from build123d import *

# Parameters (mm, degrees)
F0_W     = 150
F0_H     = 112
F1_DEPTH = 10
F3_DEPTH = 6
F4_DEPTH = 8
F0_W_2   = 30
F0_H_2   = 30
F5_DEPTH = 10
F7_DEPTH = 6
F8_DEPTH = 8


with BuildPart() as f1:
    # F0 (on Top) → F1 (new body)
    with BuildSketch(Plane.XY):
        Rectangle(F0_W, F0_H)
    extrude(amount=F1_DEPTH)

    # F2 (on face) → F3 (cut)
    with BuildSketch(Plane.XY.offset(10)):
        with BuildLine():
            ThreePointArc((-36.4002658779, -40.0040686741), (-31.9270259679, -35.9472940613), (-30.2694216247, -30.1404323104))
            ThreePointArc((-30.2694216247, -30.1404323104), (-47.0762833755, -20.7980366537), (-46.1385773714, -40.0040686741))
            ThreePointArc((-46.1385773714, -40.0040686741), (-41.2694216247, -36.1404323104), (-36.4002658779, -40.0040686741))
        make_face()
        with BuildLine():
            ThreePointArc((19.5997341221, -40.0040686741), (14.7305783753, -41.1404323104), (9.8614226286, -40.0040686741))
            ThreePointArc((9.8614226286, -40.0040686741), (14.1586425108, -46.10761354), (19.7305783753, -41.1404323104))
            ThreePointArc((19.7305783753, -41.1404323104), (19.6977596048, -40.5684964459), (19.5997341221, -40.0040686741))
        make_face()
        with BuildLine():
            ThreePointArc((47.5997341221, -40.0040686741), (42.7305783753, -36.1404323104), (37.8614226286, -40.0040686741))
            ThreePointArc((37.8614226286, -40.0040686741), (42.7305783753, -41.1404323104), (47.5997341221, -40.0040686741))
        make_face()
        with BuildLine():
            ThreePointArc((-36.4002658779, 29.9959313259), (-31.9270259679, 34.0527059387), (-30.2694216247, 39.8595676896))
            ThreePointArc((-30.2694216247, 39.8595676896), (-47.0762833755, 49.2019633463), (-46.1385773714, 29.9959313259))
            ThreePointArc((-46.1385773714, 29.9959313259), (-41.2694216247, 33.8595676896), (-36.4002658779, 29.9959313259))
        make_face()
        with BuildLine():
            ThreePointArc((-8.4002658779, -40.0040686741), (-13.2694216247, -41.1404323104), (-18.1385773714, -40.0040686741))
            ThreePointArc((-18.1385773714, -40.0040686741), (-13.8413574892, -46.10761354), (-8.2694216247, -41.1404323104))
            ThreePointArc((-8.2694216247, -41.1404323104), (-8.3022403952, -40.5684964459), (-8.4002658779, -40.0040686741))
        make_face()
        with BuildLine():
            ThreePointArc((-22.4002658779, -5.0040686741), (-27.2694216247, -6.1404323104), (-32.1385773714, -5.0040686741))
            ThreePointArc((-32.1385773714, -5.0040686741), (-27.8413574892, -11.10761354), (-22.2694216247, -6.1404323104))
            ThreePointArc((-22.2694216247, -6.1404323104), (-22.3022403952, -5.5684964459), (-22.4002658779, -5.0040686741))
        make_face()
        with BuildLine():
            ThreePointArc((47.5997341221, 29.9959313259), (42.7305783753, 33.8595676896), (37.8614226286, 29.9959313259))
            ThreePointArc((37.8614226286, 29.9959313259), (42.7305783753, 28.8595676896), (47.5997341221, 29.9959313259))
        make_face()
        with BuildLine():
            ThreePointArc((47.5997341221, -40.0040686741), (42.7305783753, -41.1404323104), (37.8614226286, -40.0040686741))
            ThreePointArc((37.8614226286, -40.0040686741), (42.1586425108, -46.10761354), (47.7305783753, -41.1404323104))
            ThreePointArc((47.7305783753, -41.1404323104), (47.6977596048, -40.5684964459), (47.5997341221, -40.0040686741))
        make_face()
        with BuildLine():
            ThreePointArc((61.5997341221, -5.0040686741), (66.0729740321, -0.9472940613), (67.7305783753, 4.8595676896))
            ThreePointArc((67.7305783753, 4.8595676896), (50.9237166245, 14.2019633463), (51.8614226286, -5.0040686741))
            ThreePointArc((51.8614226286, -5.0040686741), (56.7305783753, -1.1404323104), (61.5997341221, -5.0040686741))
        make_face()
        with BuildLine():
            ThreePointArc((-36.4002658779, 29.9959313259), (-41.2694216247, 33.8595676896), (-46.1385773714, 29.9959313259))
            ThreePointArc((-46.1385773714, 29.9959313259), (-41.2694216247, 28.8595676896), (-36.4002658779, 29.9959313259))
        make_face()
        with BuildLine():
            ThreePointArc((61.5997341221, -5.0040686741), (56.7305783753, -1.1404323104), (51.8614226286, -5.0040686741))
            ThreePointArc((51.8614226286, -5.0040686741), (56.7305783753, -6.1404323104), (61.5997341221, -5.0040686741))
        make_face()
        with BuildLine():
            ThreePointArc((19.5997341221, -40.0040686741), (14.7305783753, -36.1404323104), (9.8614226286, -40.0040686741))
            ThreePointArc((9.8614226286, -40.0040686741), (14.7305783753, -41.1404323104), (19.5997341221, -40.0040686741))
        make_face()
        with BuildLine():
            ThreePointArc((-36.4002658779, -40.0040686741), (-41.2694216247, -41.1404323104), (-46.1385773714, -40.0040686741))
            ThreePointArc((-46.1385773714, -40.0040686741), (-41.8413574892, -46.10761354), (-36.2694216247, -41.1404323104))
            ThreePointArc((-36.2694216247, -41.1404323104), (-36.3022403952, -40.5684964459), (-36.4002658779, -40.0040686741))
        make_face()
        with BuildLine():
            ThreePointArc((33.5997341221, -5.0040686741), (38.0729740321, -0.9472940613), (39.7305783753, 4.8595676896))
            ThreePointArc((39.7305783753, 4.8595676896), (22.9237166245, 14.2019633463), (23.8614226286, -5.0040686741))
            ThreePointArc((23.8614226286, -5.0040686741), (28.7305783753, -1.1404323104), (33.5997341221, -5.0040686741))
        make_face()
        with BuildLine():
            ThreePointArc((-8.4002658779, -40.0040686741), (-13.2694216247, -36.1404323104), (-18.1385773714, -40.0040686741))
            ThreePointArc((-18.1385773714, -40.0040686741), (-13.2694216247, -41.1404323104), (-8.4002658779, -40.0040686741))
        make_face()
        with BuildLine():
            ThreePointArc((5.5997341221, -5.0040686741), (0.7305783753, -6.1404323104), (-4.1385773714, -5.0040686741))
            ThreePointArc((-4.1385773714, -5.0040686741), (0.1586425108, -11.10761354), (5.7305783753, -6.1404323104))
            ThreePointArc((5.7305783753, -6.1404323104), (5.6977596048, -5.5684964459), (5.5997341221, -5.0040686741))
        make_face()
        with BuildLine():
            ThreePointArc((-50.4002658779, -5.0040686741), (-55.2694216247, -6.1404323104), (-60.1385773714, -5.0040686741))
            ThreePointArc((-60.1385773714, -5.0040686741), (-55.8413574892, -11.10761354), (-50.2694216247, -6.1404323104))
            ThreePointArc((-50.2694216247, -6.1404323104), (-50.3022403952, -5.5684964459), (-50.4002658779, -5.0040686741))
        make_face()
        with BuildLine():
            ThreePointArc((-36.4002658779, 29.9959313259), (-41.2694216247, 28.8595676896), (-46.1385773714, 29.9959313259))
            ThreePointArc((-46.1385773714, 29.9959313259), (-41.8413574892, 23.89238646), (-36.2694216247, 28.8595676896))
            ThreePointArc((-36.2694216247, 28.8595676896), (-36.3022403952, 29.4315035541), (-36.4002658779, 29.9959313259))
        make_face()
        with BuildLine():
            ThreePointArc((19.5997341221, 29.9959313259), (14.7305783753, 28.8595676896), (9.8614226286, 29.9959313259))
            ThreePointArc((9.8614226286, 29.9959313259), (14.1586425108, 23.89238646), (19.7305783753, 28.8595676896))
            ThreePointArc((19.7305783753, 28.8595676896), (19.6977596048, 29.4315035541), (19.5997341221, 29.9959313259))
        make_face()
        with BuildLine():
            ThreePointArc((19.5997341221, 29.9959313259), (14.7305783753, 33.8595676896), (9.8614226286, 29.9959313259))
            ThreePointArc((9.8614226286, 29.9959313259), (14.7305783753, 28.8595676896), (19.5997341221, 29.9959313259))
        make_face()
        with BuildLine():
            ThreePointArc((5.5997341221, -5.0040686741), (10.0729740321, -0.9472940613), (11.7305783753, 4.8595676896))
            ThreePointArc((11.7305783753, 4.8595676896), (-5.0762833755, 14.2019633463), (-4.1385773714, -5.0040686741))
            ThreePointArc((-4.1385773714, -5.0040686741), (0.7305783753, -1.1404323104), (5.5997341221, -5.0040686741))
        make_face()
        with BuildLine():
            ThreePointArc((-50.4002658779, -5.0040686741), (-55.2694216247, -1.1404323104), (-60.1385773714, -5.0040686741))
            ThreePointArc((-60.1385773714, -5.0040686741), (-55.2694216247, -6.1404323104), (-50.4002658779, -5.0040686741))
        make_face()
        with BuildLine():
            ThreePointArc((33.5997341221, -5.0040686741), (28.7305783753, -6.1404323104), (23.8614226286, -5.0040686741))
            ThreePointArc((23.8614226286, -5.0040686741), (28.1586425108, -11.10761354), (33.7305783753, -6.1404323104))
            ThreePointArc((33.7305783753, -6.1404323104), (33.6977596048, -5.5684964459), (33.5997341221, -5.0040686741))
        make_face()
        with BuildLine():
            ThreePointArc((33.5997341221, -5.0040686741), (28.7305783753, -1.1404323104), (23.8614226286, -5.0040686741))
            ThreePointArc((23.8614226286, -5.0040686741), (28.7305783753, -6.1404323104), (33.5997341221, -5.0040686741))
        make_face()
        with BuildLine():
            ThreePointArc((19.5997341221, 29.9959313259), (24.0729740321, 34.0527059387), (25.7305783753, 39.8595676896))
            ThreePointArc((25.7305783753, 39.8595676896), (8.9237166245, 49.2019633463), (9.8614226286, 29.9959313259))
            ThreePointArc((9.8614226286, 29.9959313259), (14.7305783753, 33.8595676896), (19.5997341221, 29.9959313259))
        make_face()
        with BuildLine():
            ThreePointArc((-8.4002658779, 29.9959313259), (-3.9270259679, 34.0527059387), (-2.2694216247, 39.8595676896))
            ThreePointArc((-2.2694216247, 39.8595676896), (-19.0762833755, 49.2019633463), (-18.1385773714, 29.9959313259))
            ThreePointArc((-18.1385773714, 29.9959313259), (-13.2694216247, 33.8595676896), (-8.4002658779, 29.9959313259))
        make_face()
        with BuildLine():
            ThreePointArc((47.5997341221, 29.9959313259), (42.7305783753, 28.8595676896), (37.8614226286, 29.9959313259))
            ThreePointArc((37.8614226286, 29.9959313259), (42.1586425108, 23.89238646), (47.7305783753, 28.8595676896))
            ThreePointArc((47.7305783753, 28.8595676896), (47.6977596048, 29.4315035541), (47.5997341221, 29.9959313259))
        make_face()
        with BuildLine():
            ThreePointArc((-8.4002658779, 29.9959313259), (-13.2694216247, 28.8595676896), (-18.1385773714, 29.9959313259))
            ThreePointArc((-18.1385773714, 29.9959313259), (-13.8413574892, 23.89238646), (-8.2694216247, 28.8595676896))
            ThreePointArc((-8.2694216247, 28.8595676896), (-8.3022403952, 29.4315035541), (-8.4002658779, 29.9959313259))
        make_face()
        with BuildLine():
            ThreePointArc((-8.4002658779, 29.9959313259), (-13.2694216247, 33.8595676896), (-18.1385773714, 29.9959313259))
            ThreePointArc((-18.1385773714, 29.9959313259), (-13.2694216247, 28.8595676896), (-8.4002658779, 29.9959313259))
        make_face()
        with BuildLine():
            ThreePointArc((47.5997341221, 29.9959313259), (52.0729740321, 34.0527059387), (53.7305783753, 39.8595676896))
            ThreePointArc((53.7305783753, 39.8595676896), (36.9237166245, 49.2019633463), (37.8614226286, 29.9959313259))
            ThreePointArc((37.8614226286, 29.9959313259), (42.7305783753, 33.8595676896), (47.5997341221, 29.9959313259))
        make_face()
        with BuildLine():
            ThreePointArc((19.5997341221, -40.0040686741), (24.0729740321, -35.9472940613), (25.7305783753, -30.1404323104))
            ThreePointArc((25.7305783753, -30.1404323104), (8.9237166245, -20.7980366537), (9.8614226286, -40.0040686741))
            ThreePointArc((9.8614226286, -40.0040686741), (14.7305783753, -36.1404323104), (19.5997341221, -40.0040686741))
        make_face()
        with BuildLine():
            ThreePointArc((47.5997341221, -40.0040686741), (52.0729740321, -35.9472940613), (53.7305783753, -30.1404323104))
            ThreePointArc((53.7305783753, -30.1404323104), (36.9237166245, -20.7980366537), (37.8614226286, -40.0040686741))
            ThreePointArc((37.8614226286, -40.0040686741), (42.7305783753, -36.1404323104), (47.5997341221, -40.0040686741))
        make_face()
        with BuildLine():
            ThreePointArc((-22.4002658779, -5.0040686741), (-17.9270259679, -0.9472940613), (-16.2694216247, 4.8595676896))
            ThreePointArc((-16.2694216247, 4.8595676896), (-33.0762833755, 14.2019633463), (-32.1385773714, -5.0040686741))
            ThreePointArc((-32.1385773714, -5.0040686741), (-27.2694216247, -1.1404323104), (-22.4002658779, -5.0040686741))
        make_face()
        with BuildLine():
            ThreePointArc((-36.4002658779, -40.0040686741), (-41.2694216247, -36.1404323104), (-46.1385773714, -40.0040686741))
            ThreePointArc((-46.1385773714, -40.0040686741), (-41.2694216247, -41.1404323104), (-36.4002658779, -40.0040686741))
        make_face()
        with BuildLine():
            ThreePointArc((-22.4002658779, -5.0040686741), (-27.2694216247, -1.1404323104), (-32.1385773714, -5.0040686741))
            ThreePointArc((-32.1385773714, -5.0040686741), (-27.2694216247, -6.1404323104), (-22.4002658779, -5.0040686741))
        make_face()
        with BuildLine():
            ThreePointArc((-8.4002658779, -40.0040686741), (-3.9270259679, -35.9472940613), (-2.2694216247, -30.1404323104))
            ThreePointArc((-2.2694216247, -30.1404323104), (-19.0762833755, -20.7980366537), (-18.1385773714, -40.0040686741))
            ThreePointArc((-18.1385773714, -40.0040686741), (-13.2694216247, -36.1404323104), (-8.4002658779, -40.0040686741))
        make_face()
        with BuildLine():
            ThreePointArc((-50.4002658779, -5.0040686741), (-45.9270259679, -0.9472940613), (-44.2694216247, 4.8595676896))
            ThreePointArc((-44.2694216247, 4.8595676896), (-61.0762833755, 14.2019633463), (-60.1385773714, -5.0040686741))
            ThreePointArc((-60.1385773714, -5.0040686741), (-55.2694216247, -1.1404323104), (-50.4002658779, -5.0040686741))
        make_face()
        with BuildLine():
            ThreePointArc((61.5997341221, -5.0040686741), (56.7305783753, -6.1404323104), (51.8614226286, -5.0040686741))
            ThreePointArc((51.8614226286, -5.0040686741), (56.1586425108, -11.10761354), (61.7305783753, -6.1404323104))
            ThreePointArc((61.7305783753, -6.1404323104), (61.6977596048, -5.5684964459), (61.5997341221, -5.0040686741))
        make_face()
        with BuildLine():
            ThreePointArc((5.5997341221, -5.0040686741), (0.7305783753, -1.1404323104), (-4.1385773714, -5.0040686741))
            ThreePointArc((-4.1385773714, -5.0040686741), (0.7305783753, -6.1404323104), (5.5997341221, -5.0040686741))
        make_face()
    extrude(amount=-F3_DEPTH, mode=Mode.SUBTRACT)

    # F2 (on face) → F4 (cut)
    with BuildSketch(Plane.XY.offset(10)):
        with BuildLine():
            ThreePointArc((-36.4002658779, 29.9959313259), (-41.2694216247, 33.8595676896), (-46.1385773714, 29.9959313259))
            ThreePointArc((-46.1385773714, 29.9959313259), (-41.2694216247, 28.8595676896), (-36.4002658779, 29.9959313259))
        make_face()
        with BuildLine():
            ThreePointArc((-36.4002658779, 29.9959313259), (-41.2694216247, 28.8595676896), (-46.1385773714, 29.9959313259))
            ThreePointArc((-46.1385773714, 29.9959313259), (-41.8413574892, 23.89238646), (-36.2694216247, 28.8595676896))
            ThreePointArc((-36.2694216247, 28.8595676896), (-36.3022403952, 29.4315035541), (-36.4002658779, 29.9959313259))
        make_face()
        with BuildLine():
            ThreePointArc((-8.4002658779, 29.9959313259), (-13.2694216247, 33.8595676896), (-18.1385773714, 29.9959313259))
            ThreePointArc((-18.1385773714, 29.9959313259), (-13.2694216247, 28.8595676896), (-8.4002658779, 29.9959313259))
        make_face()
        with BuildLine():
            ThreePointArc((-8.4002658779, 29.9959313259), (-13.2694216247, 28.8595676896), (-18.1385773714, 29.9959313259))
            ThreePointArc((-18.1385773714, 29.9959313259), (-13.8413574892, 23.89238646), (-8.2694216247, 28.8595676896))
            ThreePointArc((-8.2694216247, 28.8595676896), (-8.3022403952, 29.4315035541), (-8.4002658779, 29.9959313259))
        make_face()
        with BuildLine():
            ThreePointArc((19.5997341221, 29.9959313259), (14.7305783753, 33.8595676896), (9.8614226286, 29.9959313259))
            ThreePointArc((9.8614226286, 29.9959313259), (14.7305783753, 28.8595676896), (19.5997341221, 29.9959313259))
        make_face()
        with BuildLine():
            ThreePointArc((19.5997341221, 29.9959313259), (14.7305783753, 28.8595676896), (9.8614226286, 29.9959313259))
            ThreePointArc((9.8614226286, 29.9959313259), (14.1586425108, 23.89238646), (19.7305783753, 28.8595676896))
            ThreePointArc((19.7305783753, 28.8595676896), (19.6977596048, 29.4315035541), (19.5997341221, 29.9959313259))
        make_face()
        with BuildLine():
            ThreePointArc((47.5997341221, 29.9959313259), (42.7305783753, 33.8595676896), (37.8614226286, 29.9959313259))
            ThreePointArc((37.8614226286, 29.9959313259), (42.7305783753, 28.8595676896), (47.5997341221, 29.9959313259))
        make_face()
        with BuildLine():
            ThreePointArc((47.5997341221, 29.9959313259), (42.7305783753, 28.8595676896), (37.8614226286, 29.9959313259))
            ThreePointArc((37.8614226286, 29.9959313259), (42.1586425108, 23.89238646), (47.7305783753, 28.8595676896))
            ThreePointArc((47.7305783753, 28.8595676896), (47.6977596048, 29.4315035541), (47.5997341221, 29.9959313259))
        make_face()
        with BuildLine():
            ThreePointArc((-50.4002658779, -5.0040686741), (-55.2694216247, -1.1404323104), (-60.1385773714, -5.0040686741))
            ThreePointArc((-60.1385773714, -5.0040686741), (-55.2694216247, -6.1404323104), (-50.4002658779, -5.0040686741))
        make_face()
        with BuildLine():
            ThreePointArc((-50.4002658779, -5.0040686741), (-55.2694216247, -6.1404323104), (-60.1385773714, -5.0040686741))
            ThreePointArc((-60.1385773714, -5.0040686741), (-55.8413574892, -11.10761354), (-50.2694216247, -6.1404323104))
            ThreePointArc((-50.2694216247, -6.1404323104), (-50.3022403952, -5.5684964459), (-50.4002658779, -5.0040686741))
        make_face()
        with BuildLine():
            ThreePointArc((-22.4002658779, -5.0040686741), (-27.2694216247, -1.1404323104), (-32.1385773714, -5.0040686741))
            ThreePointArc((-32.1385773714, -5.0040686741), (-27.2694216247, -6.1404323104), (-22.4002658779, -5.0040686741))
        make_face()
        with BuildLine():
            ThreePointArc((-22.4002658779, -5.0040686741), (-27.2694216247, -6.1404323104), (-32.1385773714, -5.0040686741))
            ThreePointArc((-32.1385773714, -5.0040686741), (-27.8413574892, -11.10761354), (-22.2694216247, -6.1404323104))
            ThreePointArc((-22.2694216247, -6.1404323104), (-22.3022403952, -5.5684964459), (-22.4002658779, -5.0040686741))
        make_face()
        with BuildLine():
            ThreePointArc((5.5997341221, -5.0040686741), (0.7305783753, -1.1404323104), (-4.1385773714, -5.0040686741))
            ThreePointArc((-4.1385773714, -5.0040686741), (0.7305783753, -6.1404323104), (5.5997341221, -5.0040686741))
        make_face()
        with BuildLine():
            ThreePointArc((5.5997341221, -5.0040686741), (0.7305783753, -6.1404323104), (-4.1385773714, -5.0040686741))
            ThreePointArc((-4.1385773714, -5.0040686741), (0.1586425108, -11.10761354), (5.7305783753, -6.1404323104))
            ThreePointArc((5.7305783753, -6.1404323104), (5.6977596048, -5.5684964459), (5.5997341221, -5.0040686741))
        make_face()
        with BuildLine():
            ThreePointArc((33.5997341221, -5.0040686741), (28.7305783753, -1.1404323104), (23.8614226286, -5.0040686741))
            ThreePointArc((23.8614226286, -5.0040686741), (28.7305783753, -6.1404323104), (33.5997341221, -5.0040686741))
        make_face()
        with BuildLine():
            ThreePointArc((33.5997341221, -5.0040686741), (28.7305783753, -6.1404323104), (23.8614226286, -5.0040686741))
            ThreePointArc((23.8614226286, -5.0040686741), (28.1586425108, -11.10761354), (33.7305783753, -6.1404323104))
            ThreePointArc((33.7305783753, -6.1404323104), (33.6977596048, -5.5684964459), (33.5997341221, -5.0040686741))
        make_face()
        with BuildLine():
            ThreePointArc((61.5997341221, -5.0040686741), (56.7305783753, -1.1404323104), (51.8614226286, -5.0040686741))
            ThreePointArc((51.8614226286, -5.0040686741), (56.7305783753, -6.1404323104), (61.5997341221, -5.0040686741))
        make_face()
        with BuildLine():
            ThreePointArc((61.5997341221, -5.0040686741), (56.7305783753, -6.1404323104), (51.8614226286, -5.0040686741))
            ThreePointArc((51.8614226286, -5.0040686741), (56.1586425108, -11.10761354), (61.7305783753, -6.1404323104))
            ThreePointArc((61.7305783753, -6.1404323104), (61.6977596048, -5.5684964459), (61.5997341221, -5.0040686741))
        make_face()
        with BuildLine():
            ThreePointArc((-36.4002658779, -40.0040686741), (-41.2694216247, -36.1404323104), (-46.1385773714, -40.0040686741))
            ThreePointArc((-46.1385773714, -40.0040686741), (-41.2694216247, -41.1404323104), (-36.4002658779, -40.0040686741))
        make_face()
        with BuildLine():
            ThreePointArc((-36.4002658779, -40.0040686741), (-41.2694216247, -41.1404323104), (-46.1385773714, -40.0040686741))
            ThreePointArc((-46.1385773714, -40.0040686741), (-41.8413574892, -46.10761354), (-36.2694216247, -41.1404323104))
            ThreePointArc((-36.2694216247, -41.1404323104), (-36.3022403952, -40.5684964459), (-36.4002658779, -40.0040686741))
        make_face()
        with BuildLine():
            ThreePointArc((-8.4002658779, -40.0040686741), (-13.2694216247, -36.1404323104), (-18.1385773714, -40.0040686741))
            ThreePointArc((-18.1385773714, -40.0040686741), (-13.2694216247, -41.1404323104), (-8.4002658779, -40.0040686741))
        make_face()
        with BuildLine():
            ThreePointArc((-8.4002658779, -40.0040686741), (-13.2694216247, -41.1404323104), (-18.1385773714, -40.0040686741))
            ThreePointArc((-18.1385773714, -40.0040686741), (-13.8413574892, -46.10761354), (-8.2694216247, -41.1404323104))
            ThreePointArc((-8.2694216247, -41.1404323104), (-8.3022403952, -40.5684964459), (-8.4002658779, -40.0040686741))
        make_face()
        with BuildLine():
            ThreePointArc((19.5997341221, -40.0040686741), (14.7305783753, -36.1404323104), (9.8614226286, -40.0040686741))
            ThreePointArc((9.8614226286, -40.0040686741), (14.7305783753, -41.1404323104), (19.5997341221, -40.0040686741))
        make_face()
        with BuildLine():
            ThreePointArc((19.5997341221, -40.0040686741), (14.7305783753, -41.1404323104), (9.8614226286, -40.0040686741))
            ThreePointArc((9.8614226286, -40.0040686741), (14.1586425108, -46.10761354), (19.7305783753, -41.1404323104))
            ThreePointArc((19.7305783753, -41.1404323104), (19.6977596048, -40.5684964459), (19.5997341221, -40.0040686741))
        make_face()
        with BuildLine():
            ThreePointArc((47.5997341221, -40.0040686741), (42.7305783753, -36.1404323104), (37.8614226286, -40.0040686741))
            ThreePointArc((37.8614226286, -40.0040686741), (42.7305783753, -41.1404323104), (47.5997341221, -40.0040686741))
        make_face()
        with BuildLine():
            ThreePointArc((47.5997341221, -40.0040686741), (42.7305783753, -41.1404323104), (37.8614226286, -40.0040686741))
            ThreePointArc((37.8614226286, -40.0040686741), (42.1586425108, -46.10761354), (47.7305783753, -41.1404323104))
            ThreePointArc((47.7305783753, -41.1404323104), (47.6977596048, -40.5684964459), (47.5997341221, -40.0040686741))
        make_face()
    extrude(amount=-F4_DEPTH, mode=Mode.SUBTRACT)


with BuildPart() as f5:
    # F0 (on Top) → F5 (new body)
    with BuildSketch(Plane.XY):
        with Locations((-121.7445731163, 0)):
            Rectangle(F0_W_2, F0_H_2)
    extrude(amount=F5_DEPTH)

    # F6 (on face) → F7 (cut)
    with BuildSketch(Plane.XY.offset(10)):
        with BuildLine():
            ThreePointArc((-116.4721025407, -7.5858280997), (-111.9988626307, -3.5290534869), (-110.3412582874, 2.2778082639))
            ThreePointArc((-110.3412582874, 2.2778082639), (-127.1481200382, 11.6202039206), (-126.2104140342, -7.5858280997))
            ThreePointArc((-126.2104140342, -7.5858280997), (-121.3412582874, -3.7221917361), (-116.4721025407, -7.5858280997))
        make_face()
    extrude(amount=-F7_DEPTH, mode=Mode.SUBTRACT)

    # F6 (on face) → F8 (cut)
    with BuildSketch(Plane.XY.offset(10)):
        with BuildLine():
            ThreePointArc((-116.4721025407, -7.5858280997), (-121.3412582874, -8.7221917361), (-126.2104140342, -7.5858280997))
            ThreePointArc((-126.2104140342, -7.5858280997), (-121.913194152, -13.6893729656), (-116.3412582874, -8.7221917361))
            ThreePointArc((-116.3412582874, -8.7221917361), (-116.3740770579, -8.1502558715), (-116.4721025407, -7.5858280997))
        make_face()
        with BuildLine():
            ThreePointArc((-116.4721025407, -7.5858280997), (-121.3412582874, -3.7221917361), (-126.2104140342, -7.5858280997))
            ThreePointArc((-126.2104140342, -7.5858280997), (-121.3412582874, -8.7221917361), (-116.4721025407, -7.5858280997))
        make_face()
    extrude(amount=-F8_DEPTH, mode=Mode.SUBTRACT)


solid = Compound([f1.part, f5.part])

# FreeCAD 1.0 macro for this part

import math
import FreeCAD as App
import Part
import Sketcher
Q = App.Units.Quantity


def add_polygon(sketch, points):
    """Adds a closed chain of lines whose ends are joined by coincident constraints."""
    first, n = sketch.GeometryCount, len(points)
    for a, b in zip(points, points[1:] + points[:1]):
        sketch.addGeometry(Part.LineSegment(App.Vector(*a, 0), App.Vector(*b, 0)), False)
    for i in range(n):
        sketch.addConstraint(Sketcher.Constraint("Coincident", first + i, 2, first + (i + 1) % n, 1))

doc = App.newDocument("Part")
body = doc.addObject("PartDesign::Body", "Body")

# Sketch on XY plane
sketch1 = body.newObject("Sketcher::SketchObject", "Sketch")
sketch1.AttachmentSupport = (doc.getObject("XY_Plane"), [""])
sketch1.MapMode = "FlatFace"
add_polygon(sketch1, [(-75, 56), (-75, -56), (75, -56), (75, 56)])  # lines 0-3
sketch1.addConstraint([
    Sketcher.Constraint("Vertical", 0),
    Sketcher.Constraint("Horizontal", 1),
    Sketcher.Constraint("Vertical", 2),
    Sketcher.Constraint("Horizontal", 3),
    Sketcher.Constraint("Symmetric", 0, 2, 2, 2, -1, 1),
    Sketcher.Constraint("DistanceX", 1, 1, 1, 2, Q("150 mm")),
    Sketcher.Constraint("DistanceY", 0, 2, 0, 1, Q("112 mm")),
])
pad1 = body.newObject("PartDesign::Pad", "Pad")
pad1.Profile = sketch1
pad1.Length = 10

# Sketch on XY plane
sketch2 = body.newObject("Sketcher::SketchObject", "Sketch001")
sketch2.AttachmentSupport = (doc.getObject("XY_Plane"), [""])
sketch2.MapMode = "FlatFace"
sketch2.AttachmentOffset = App.Placement(App.Vector(0, 0, 10), App.Rotation())
sketch2.addGeometry([
    Part.ArcOfCircle(Part.Circle(App.Vector(-41.269422, -30.140432, 0), App.Vector(0, 0, 1), 11), math.radians(-63.726882), math.radians(0)),  # 0
    Part.ArcOfCircle(Part.Circle(App.Vector(-41.269422, -30.140432, 0), App.Vector(0, 0, 1), 11), math.radians(0), math.radians(243.726882)),  # 1
    Part.ArcOfCircle(Part.Circle(App.Vector(-41.269422, -41.140432, 0), App.Vector(0, 0, 1), 5), math.radians(166.863441), math.radians(360)),  # 2
    Part.ArcOfCircle(Part.Circle(App.Vector(-41.269422, -41.140432, 0), App.Vector(0, 0, 1), 5), math.radians(0), math.radians(13.136559)),  # 3
    Part.ArcOfCircle(Part.Circle(App.Vector(14.730578, -41.140432, 0), App.Vector(0, 0, 1), 5), math.radians(166.863441), math.radians(360)),  # 4
    Part.ArcOfCircle(Part.Circle(App.Vector(14.730578, -41.140432, 0), App.Vector(0, 0, 1), 5), math.radians(0), math.radians(13.136559)),  # 5
    Part.ArcOfCircle(Part.Circle(App.Vector(14.730578, -30.140432, 0), App.Vector(0, 0, 1), 11), math.radians(-63.726882), math.radians(0)),  # 6
    Part.ArcOfCircle(Part.Circle(App.Vector(14.730578, -30.140432, 0), App.Vector(0, 0, 1), 11), math.radians(0), math.radians(243.726882)),  # 7
    Part.ArcOfCircle(Part.Circle(App.Vector(42.730578, -41.140432, 0), App.Vector(0, 0, 1), 5), math.radians(166.863441), math.radians(360)),  # 8
    Part.ArcOfCircle(Part.Circle(App.Vector(42.730578, -41.140432, 0), App.Vector(0, 0, 1), 5), math.radians(0), math.radians(13.136559)),  # 9
    Part.ArcOfCircle(Part.Circle(App.Vector(42.730578, -30.140432, 0), App.Vector(0, 0, 1), 11), math.radians(-63.726882), math.radians(0)),  # 10
    Part.ArcOfCircle(Part.Circle(App.Vector(42.730578, -30.140432, 0), App.Vector(0, 0, 1), 11), math.radians(0), math.radians(243.726882)),  # 11
    Part.ArcOfCircle(Part.Circle(App.Vector(-41.269422, 39.859568, 0), App.Vector(0, 0, 1), 11), math.radians(-63.726882), math.radians(0)),  # 12
    Part.ArcOfCircle(Part.Circle(App.Vector(-41.269422, 39.859568, 0), App.Vector(0, 0, 1), 11), math.radians(0), math.radians(243.726882)),  # 13
    Part.ArcOfCircle(Part.Circle(App.Vector(-41.269422, 28.859568, 0), App.Vector(0, 0, 1), 5), math.radians(166.863441), math.radians(360)),  # 14
    Part.ArcOfCircle(Part.Circle(App.Vector(-41.269422, 28.859568, 0), App.Vector(0, 0, 1), 5), math.radians(0), math.radians(13.136559)),  # 15
    Part.ArcOfCircle(Part.Circle(App.Vector(-13.269422, -41.140432, 0), App.Vector(0, 0, 1), 5), math.radians(166.863441), math.radians(360)),  # 16
    Part.ArcOfCircle(Part.Circle(App.Vector(-13.269422, -41.140432, 0), App.Vector(0, 0, 1), 5), math.radians(0), math.radians(13.136559)),  # 17
    Part.ArcOfCircle(Part.Circle(App.Vector(-13.269422, -30.140432, 0), App.Vector(0, 0, 1), 11), math.radians(-63.726882), math.radians(0)),  # 18
    Part.ArcOfCircle(Part.Circle(App.Vector(-13.269422, -30.140432, 0), App.Vector(0, 0, 1), 11), math.radians(0), math.radians(243.726882)),  # 19
    Part.ArcOfCircle(Part.Circle(App.Vector(-27.269422, -6.140432, 0), App.Vector(0, 0, 1), 5), math.radians(166.863441), math.radians(360)),  # 20
    Part.ArcOfCircle(Part.Circle(App.Vector(-27.269422, -6.140432, 0), App.Vector(0, 0, 1), 5), math.radians(0), math.radians(13.136559)),  # 21
    Part.ArcOfCircle(Part.Circle(App.Vector(-27.269422, 4.859568, 0), App.Vector(0, 0, 1), 11), math.radians(-63.726882), math.radians(0)),  # 22
    Part.ArcOfCircle(Part.Circle(App.Vector(-27.269422, 4.859568, 0), App.Vector(0, 0, 1), 11), math.radians(0), math.radians(243.726882)),  # 23
    Part.ArcOfCircle(Part.Circle(App.Vector(42.730578, 28.859568, 0), App.Vector(0, 0, 1), 5), math.radians(166.863441), math.radians(360)),  # 24
    Part.ArcOfCircle(Part.Circle(App.Vector(42.730578, 28.859568, 0), App.Vector(0, 0, 1), 5), math.radians(0), math.radians(13.136559)),  # 25
    Part.ArcOfCircle(Part.Circle(App.Vector(42.730578, 39.859568, 0), App.Vector(0, 0, 1), 11), math.radians(-63.726882), math.radians(0)),  # 26
    Part.ArcOfCircle(Part.Circle(App.Vector(42.730578, 39.859568, 0), App.Vector(0, 0, 1), 11), math.radians(0), math.radians(243.726882)),  # 27
    Part.ArcOfCircle(Part.Circle(App.Vector(56.730578, 4.859568, 0), App.Vector(0, 0, 1), 11), math.radians(-63.726882), math.radians(0)),  # 28
    Part.ArcOfCircle(Part.Circle(App.Vector(56.730578, 4.859568, 0), App.Vector(0, 0, 1), 11), math.radians(0), math.radians(243.726882)),  # 29
    Part.ArcOfCircle(Part.Circle(App.Vector(56.730578, -6.140432, 0), App.Vector(0, 0, 1), 5), math.radians(166.863441), math.radians(360)),  # 30
    Part.ArcOfCircle(Part.Circle(App.Vector(56.730578, -6.140432, 0), App.Vector(0, 0, 1), 5), math.radians(0), math.radians(13.136559)),  # 31
    Part.ArcOfCircle(Part.Circle(App.Vector(28.730578, 4.859568, 0), App.Vector(0, 0, 1), 11), math.radians(-63.726882), math.radians(0)),  # 32
    Part.ArcOfCircle(Part.Circle(App.Vector(28.730578, 4.859568, 0), App.Vector(0, 0, 1), 11), math.radians(0), math.radians(243.726882)),  # 33
    Part.ArcOfCircle(Part.Circle(App.Vector(28.730578, -6.140432, 0), App.Vector(0, 0, 1), 5), math.radians(166.863441), math.radians(360)),  # 34
    Part.ArcOfCircle(Part.Circle(App.Vector(28.730578, -6.140432, 0), App.Vector(0, 0, 1), 5), math.radians(0), math.radians(13.136559)),  # 35
    Part.ArcOfCircle(Part.Circle(App.Vector(0.730578, -6.140432, 0), App.Vector(0, 0, 1), 5), math.radians(166.863441), math.radians(360)),  # 36
    Part.ArcOfCircle(Part.Circle(App.Vector(0.730578, -6.140432, 0), App.Vector(0, 0, 1), 5), math.radians(0), math.radians(13.136559)),  # 37
    Part.ArcOfCircle(Part.Circle(App.Vector(0.730578, 4.859568, 0), App.Vector(0, 0, 1), 11), math.radians(-63.726882), math.radians(0)),  # 38
    Part.ArcOfCircle(Part.Circle(App.Vector(0.730578, 4.859568, 0), App.Vector(0, 0, 1), 11), math.radians(0), math.radians(243.726882)),  # 39
    Part.ArcOfCircle(Part.Circle(App.Vector(-55.269422, -6.140432, 0), App.Vector(0, 0, 1), 5), math.radians(166.863441), math.radians(360)),  # 40
    Part.ArcOfCircle(Part.Circle(App.Vector(-55.269422, -6.140432, 0), App.Vector(0, 0, 1), 5), math.radians(0), math.radians(13.136559)),  # 41
    Part.ArcOfCircle(Part.Circle(App.Vector(-55.269422, 4.859568, 0), App.Vector(0, 0, 1), 11), math.radians(-63.726882), math.radians(0)),  # 42
    Part.ArcOfCircle(Part.Circle(App.Vector(-55.269422, 4.859568, 0), App.Vector(0, 0, 1), 11), math.radians(0), math.radians(243.726882)),  # 43
    Part.ArcOfCircle(Part.Circle(App.Vector(14.730578, 28.859568, 0), App.Vector(0, 0, 1), 5), math.radians(166.863441), math.radians(360)),  # 44
    Part.ArcOfCircle(Part.Circle(App.Vector(14.730578, 28.859568, 0), App.Vector(0, 0, 1), 5), math.radians(0), math.radians(13.136559)),  # 45
    Part.ArcOfCircle(Part.Circle(App.Vector(14.730578, 39.859568, 0), App.Vector(0, 0, 1), 11), math.radians(-63.726882), math.radians(0)),  # 46
    Part.ArcOfCircle(Part.Circle(App.Vector(14.730578, 39.859568, 0), App.Vector(0, 0, 1), 11), math.radians(0), math.radians(243.726882)),  # 47
    Part.ArcOfCircle(Part.Circle(App.Vector(-13.269422, 39.859568, 0), App.Vector(0, 0, 1), 11), math.radians(-63.726882), math.radians(0)),  # 48
    Part.ArcOfCircle(Part.Circle(App.Vector(-13.269422, 39.859568, 0), App.Vector(0, 0, 1), 11), math.radians(0), math.radians(243.726882)),  # 49
    Part.ArcOfCircle(Part.Circle(App.Vector(-13.269422, 28.859568, 0), App.Vector(0, 0, 1), 5), math.radians(166.863441), math.radians(360)),  # 50
    Part.ArcOfCircle(Part.Circle(App.Vector(-13.269422, 28.859568, 0), App.Vector(0, 0, 1), 5), math.radians(0), math.radians(13.136559)),  # 51
], False)
sketch2.addConstraint([
    Sketcher.Constraint("Tangent", 0, 2, 1, 1),
    Sketcher.Constraint("Coincident", 1, 2, 2, 1),
    Sketcher.Constraint("Tangent", 2, 2, 3, 1),
    Sketcher.Constraint("Coincident", 3, 2, 0, 1),
    Sketcher.Constraint("Tangent", 4, 2, 5, 1),
    Sketcher.Constraint("Coincident", 5, 2, 6, 1),
    Sketcher.Constraint("Tangent", 6, 2, 7, 1),
    Sketcher.Constraint("Coincident", 7, 2, 4, 1),
    Sketcher.Constraint("Tangent", 8, 2, 9, 1),
    Sketcher.Constraint("Coincident", 9, 2, 10, 1),
    Sketcher.Constraint("Tangent", 10, 2, 11, 1),
    Sketcher.Constraint("Coincident", 11, 2, 8, 1),
    Sketcher.Constraint("Tangent", 12, 2, 13, 1),
    Sketcher.Constraint("Coincident", 13, 2, 14, 1),
    Sketcher.Constraint("Tangent", 14, 2, 15, 1),
    Sketcher.Constraint("Coincident", 15, 2, 12, 1),
    Sketcher.Constraint("Tangent", 16, 2, 17, 1),
    Sketcher.Constraint("Coincident", 17, 2, 18, 1),
    Sketcher.Constraint("Tangent", 18, 2, 19, 1),
    Sketcher.Constraint("Coincident", 19, 2, 16, 1),
    Sketcher.Constraint("Tangent", 20, 2, 21, 1),
    Sketcher.Constraint("Coincident", 21, 2, 22, 1),
    Sketcher.Constraint("Tangent", 22, 2, 23, 1),
    Sketcher.Constraint("Coincident", 23, 2, 20, 1),
    Sketcher.Constraint("Tangent", 24, 2, 25, 1),
    Sketcher.Constraint("Coincident", 25, 2, 26, 1),
    Sketcher.Constraint("Tangent", 26, 2, 27, 1),
    Sketcher.Constraint("Coincident", 27, 2, 24, 1),
    Sketcher.Constraint("Tangent", 28, 2, 29, 1),
    Sketcher.Constraint("Coincident", 29, 2, 30, 1),
    Sketcher.Constraint("Tangent", 30, 2, 31, 1),
    Sketcher.Constraint("Coincident", 31, 2, 28, 1),
    Sketcher.Constraint("Tangent", 32, 2, 33, 1),
    Sketcher.Constraint("Coincident", 33, 2, 34, 1),
    Sketcher.Constraint("Tangent", 34, 2, 35, 1),
    Sketcher.Constraint("Coincident", 35, 2, 32, 1),
    Sketcher.Constraint("Tangent", 36, 2, 37, 1),
    Sketcher.Constraint("Coincident", 37, 2, 38, 1),
    Sketcher.Constraint("Tangent", 38, 2, 39, 1),
    Sketcher.Constraint("Coincident", 39, 2, 36, 1),
    Sketcher.Constraint("Tangent", 40, 2, 41, 1),
    Sketcher.Constraint("Coincident", 41, 2, 42, 1),
    Sketcher.Constraint("Tangent", 42, 2, 43, 1),
    Sketcher.Constraint("Coincident", 43, 2, 40, 1),
    Sketcher.Constraint("Tangent", 44, 2, 45, 1),
    Sketcher.Constraint("Coincident", 45, 2, 46, 1),
    Sketcher.Constraint("Tangent", 46, 2, 47, 1),
    Sketcher.Constraint("Coincident", 47, 2, 44, 1),
    Sketcher.Constraint("Tangent", 48, 2, 49, 1),
    Sketcher.Constraint("Coincident", 49, 2, 50, 1),
    Sketcher.Constraint("Tangent", 50, 2, 51, 1),
    Sketcher.Constraint("Coincident", 51, 2, 48, 1),
    Sketcher.Constraint("Equal", 0, 1),
    Sketcher.Constraint("Equal", 2, 3),
    Sketcher.Constraint("Equal", 3, 4),
    Sketcher.Constraint("Equal", 4, 5),
    Sketcher.Constraint("Equal", 1, 6),
    Sketcher.Constraint("Equal", 6, 7),
    Sketcher.Constraint("Equal", 5, 8),
    Sketcher.Constraint("Equal", 8, 9),
    Sketcher.Constraint("Equal", 7, 10),
    Sketcher.Constraint("Equal", 10, 11),
    Sketcher.Constraint("Equal", 11, 12),
    Sketcher.Constraint("Equal", 12, 13),
    Sketcher.Constraint("Equal", 9, 14),
    Sketcher.Constraint("Equal", 14, 15),
    Sketcher.Constraint("Equal", 15, 16),
    Sketcher.Constraint("Equal", 16, 17),
    Sketcher.Constraint("Equal", 13, 18),
    Sketcher.Constraint("Equal", 18, 19),
    Sketcher.Constraint("Equal", 17, 20),
    Sketcher.Constraint("Equal", 20, 21),
    Sketcher.Constraint("Equal", 19, 22),
    Sketcher.Constraint("Equal", 22, 23),
    Sketcher.Constraint("Equal", 21, 24),
    Sketcher.Constraint("Equal", 24, 25),
    Sketcher.Constraint("Equal", 23, 26),
    Sketcher.Constraint("Equal", 26, 27),
    Sketcher.Constraint("Equal", 27, 28),
    Sketcher.Constraint("Equal", 28, 29),
    Sketcher.Constraint("Equal", 25, 30),
    Sketcher.Constraint("Equal", 30, 31),
    Sketcher.Constraint("Equal", 29, 32),
    Sketcher.Constraint("Equal", 32, 33),
    Sketcher.Constraint("Equal", 31, 34),
    Sketcher.Constraint("Equal", 34, 35),
    Sketcher.Constraint("Equal", 35, 36),
    Sketcher.Constraint("Equal", 36, 37),
    Sketcher.Constraint("Equal", 33, 38),
    Sketcher.Constraint("Equal", 38, 39),
    Sketcher.Constraint("Equal", 37, 40),
    Sketcher.Constraint("Equal", 40, 41),
    Sketcher.Constraint("Equal", 39, 42),
    Sketcher.Constraint("Equal", 42, 43),
    Sketcher.Constraint("Equal", 41, 44),
    Sketcher.Constraint("Equal", 44, 45),
    Sketcher.Constraint("Equal", 43, 46),
    Sketcher.Constraint("Equal", 46, 47),
    Sketcher.Constraint("Equal", 47, 48),
    Sketcher.Constraint("Equal", 48, 49),
    Sketcher.Constraint("Equal", 45, 50),
    Sketcher.Constraint("Equal", 50, 51),
    Sketcher.Constraint("Horizontal", 3, 3, 4, 3),
    Sketcher.Constraint("Horizontal", 1, 3, 6, 3),
    Sketcher.Constraint("Horizontal", 5, 3, 8, 3),
    Sketcher.Constraint("Horizontal", 7, 3, 10, 3),
    Sketcher.Constraint("Horizontal", 9, 3, 16, 3),
    Sketcher.Constraint("Horizontal", 11, 3, 18, 3),
    Sketcher.Constraint("Horizontal", 15, 3, 24, 3),
    Sketcher.Constraint("Horizontal", 13, 3, 26, 3),
    Sketcher.Constraint("Horizontal", 23, 3, 28, 3),
    Sketcher.Constraint("Horizontal", 21, 3, 30, 3),
    Sketcher.Constraint("Horizontal", 29, 3, 32, 3),
    Sketcher.Constraint("Horizontal", 31, 3, 34, 3),
    Sketcher.Constraint("Horizontal", 35, 3, 36, 3),
    Sketcher.Constraint("Horizontal", 33, 3, 38, 3),
    Sketcher.Constraint("Horizontal", 37, 3, 40, 3),
    Sketcher.Constraint("Horizontal", 39, 3, 42, 3),
    Sketcher.Constraint("Horizontal", 25, 3, 44, 3),
    Sketcher.Constraint("Horizontal", 27, 3, 46, 3),
    Sketcher.Constraint("Horizontal", 47, 3, 48, 3),
    Sketcher.Constraint("Horizontal", 45, 3, 50, 3),
    Sketcher.Constraint("Horizontal", 19, 3, 0, 2),
    Sketcher.Constraint("Horizontal", 17, 3, 2, 2),
    Sketcher.Constraint("Horizontal", 1, 2, 3, 2),
    Sketcher.Constraint("Horizontal", 2, 2, 4, 2),
    Sketcher.Constraint("Horizontal", 3, 2, 5, 2),
    Sketcher.Constraint("Horizontal", 0, 2, 6, 2),
    Sketcher.Constraint("Horizontal", 4, 2, 8, 2),
    Sketcher.Constraint("Horizontal", 7, 2, 9, 2),
    Sketcher.Constraint("Horizontal", 6, 2, 10, 2),
    Sketcher.Constraint("Horizontal", 49, 3, 12, 2),
    Sketcher.Constraint("Horizontal", 51, 3, 14, 2),
    Sketcher.Constraint("Horizontal", 13, 2, 15, 2),
    Sketcher.Constraint("Horizontal", 8, 2, 16, 2),
    Sketcher.Constraint("Horizontal", 11, 2, 17, 2),
    Sketcher.Constraint("Horizontal", 10, 2, 18, 2),
    Sketcher.Constraint("Horizontal", 41, 3, 20, 2),
    Sketcher.Constraint("Horizontal", 43, 3, 22, 2),
    Sketcher.Constraint("Horizontal", 21, 2, 23, 2),
    Sketcher.Constraint("Horizontal", 14, 2, 24, 2),
    Sketcher.Constraint("Horizontal", 15, 2, 25, 2),
    Sketcher.Constraint("Horizontal", 12, 2, 26, 2),
    Sketcher.Constraint("Horizontal", 22, 2, 28, 2),
    Sketcher.Constraint("Horizontal", 23, 2, 29, 2),
    Sketcher.Constraint("Horizontal", 20, 2, 30, 2),
    Sketcher.Constraint("Horizontal", 28, 2, 32, 2),
    Sketcher.Constraint("Horizontal", 31, 2, 33, 2),
    Sketcher.Constraint("Horizontal", 30, 2, 34, 2),
    Sketcher.Constraint("Horizontal", 34, 2, 36, 2),
    Sketcher.Constraint("Horizontal", 35, 2, 37, 2),
    Sketcher.Constraint("Horizontal", 32, 2, 38, 2),
    Sketcher.Constraint("Horizontal", 36, 2, 40, 2),
    Sketcher.Constraint("Horizontal", 39, 2, 41, 2),
    Sketcher.Constraint("Horizontal", 38, 2, 42, 2),
    Sketcher.Constraint("Horizontal", 24, 2, 44, 2),
    Sketcher.Constraint("Horizontal", 27, 2, 45, 2),
    Sketcher.Constraint("Horizontal", 26, 2, 46, 2),
    Sketcher.Constraint("Horizontal", 46, 2, 48, 2),
    Sketcher.Constraint("Horizontal", 47, 2, 49, 2),
    Sketcher.Constraint("Horizontal", 44, 2, 50, 2),
    Sketcher.Constraint("Vertical", 3, 3, 12, 3),
    Sketcher.Constraint("Vertical", 11, 3, 24, 3),
    Sketcher.Constraint("Vertical", 7, 3, 44, 3),
    Sketcher.Constraint("Vertical", 19, 3, 48, 3),
    Sketcher.Constraint("Vertical", 1, 2, 13, 2),
    Sketcher.Constraint("Radius", 0, Q("11 mm")),
    Sketcher.Constraint("Radius", 2, Q("5 mm")),
    Sketcher.Constraint("DistanceX", 0, 3, -1, 1, Q("41.269422 mm")),
    Sketcher.Constraint("DistanceX", -1, 1, 4, 3, Q("14.730578 mm")),
    Sketcher.Constraint("DistanceX", -1, 1, 8, 3, Q("42.730578 mm")),
    Sketcher.Constraint("DistanceX", 16, 3, -1, 1, Q("13.269422 mm")),
    Sketcher.Constraint("DistanceX", 20, 3, -1, 1, Q("27.269422 mm")),
    Sketcher.Constraint("DistanceX", -1, 1, 28, 3, Q("56.730578 mm")),
    Sketcher.Constraint("DistanceX", -1, 1, 32, 3, Q("28.730578 mm")),
    Sketcher.Constraint("DistanceX", -1, 1, 36, 3, Q("0.730578 mm")),
    Sketcher.Constraint("DistanceX", 40, 3, -1, 1, Q("55.269422 mm")),
    Sketcher.Constraint("DistanceY", 1, 2, -1, 1, Q("40.004069 mm")),
    Sketcher.Constraint("DistanceY", -1, 1, 13, 2, Q("29.995931 mm")),
    Sketcher.Constraint("DistanceY", 21, 2, -1, 1, Q("5.004069 mm")),
    Sketcher.Constraint("DistanceY", 0, 3, -1, 1, Q("30.140432 mm")),
    Sketcher.Constraint("DistanceY", 20, 3, -1, 1, Q("6.140432 mm")),
])
pocket1 = body.newObject("PartDesign::Pocket", "Pocket")
pocket1.Profile = sketch2
pocket1.Length = 6

# Sketch on XY plane
sketch3 = body.newObject("Sketcher::SketchObject", "Sketch002")
sketch3.AttachmentSupport = (doc.getObject("XY_Plane"), [""])
sketch3.MapMode = "FlatFace"
sketch3.AttachmentOffset = App.Placement(App.Vector(0, 0, 10), App.Rotation())
sketch3.addGeometry([
    Part.ArcOfCircle(Part.Circle(App.Vector(-41.269422, 28.859568, 0), App.Vector(0, 0, 1), 5), math.radians(13.136559), math.radians(166.863441)),  # 0
    Part.ArcOfCircle(Part.Circle(App.Vector(-41.269422, 28.859568, 0), App.Vector(0, 0, 1), 5), math.radians(166.863441), math.radians(360)),  # 1
    Part.ArcOfCircle(Part.Circle(App.Vector(-41.269422, 28.859568, 0), App.Vector(0, 0, 1), 5), math.radians(0), math.radians(13.136559)),  # 2
    Part.ArcOfCircle(Part.Circle(App.Vector(-13.269422, 28.859568, 0), App.Vector(0, 0, 1), 5), math.radians(13.136559), math.radians(166.863441)),  # 3
    Part.ArcOfCircle(Part.Circle(App.Vector(-13.269422, 28.859568, 0), App.Vector(0, 0, 1), 5), math.radians(166.863441), math.radians(360)),  # 4
    Part.ArcOfCircle(Part.Circle(App.Vector(-13.269422, 28.859568, 0), App.Vector(0, 0, 1), 5), math.radians(0), math.radians(13.136559)),  # 5
    Part.ArcOfCircle(Part.Circle(App.Vector(14.730578, 28.859568, 0), App.Vector(0, 0, 1), 5), math.radians(13.136559), math.radians(166.863441)),  # 6
    Part.ArcOfCircle(Part.Circle(App.Vector(14.730578, 28.859568, 0), App.Vector(0, 0, 1), 5), math.radians(166.863441), math.radians(360)),  # 7
    Part.ArcOfCircle(Part.Circle(App.Vector(14.730578, 28.859568, 0), App.Vector(0, 0, 1), 5), math.radians(0), math.radians(13.136559)),  # 8
    Part.ArcOfCircle(Part.Circle(App.Vector(42.730578, 28.859568, 0), App.Vector(0, 0, 1), 5), math.radians(13.136559), math.radians(166.863441)),  # 9
    Part.ArcOfCircle(Part.Circle(App.Vector(42.730578, 28.859568, 0), App.Vector(0, 0, 1), 5), math.radians(166.863441), math.radians(360)),  # 10
    Part.ArcOfCircle(Part.Circle(App.Vector(42.730578, 28.859568, 0), App.Vector(0, 0, 1), 5), math.radians(0), math.radians(13.136559)),  # 11
    Part.ArcOfCircle(Part.Circle(App.Vector(-55.269422, -6.140432, 0), App.Vector(0, 0, 1), 5), math.radians(13.136559), math.radians(166.863441)),  # 12
    Part.ArcOfCircle(Part.Circle(App.Vector(-55.269422, -6.140432, 0), App.Vector(0, 0, 1), 5), math.radians(166.863441), math.radians(360)),  # 13
    Part.ArcOfCircle(Part.Circle(App.Vector(-55.269422, -6.140432, 0), App.Vector(0, 0, 1), 5), math.radians(0), math.radians(13.136559)),  # 14
    Part.ArcOfCircle(Part.Circle(App.Vector(-27.269422, -6.140432, 0), App.Vector(0, 0, 1), 5), math.radians(13.136559), math.radians(166.863441)),  # 15
    Part.ArcOfCircle(Part.Circle(App.Vector(-27.269422, -6.140432, 0), App.Vector(0, 0, 1), 5), math.radians(166.863441), math.radians(360)),  # 16
    Part.ArcOfCircle(Part.Circle(App.Vector(-27.269422, -6.140432, 0), App.Vector(0, 0, 1), 5), math.radians(0), math.radians(13.136559)),  # 17
    Part.ArcOfCircle(Part.Circle(App.Vector(0.730578, -6.140432, 0), App.Vector(0, 0, 1), 5), math.radians(13.136559), math.radians(166.863441)),  # 18
    Part.ArcOfCircle(Part.Circle(App.Vector(0.730578, -6.140432, 0), App.Vector(0, 0, 1), 5), math.radians(166.863441), math.radians(360)),  # 19
    Part.ArcOfCircle(Part.Circle(App.Vector(0.730578, -6.140432, 0), App.Vector(0, 0, 1), 5), math.radians(0), math.radians(13.136559)),  # 20
    Part.ArcOfCircle(Part.Circle(App.Vector(28.730578, -6.140432, 0), App.Vector(0, 0, 1), 5), math.radians(13.136559), math.radians(166.863441)),  # 21
    Part.ArcOfCircle(Part.Circle(App.Vector(28.730578, -6.140432, 0), App.Vector(0, 0, 1), 5), math.radians(166.863441), math.radians(360)),  # 22
    Part.ArcOfCircle(Part.Circle(App.Vector(28.730578, -6.140432, 0), App.Vector(0, 0, 1), 5), math.radians(0), math.radians(13.136559)),  # 23
    Part.ArcOfCircle(Part.Circle(App.Vector(56.730578, -6.140432, 0), App.Vector(0, 0, 1), 5), math.radians(13.136559), math.radians(166.863441)),  # 24
    Part.ArcOfCircle(Part.Circle(App.Vector(56.730578, -6.140432, 0), App.Vector(0, 0, 1), 5), math.radians(166.863441), math.radians(360)),  # 25
    Part.ArcOfCircle(Part.Circle(App.Vector(56.730578, -6.140432, 0), App.Vector(0, 0, 1), 5), math.radians(0), math.radians(13.136559)),  # 26
    Part.ArcOfCircle(Part.Circle(App.Vector(-41.269422, -41.140432, 0), App.Vector(0, 0, 1), 5), math.radians(13.136559), math.radians(166.863441)),  # 27
    Part.ArcOfCircle(Part.Circle(App.Vector(-41.269422, -41.140432, 0), App.Vector(0, 0, 1), 5), math.radians(166.863441), math.radians(360)),  # 28
    Part.ArcOfCircle(Part.Circle(App.Vector(-41.269422, -41.140432, 0), App.Vector(0, 0, 1), 5), math.radians(0), math.radians(13.136559)),  # 29
    Part.ArcOfCircle(Part.Circle(App.Vector(-13.269422, -41.140432, 0), App.Vector(0, 0, 1), 5), math.radians(13.136559), math.radians(166.863441)),  # 30
    Part.ArcOfCircle(Part.Circle(App.Vector(-13.269422, -41.140432, 0), App.Vector(0, 0, 1), 5), math.radians(166.863441), math.radians(360)),  # 31
    Part.ArcOfCircle(Part.Circle(App.Vector(-13.269422, -41.140432, 0), App.Vector(0, 0, 1), 5), math.radians(0), math.radians(13.136559)),  # 32
    Part.ArcOfCircle(Part.Circle(App.Vector(14.730578, -41.140432, 0), App.Vector(0, 0, 1), 5), math.radians(13.136559), math.radians(166.863441)),  # 33
    Part.ArcOfCircle(Part.Circle(App.Vector(14.730578, -41.140432, 0), App.Vector(0, 0, 1), 5), math.radians(166.863441), math.radians(360)),  # 34
    Part.ArcOfCircle(Part.Circle(App.Vector(14.730578, -41.140432, 0), App.Vector(0, 0, 1), 5), math.radians(0), math.radians(13.136559)),  # 35
    Part.ArcOfCircle(Part.Circle(App.Vector(42.730578, -41.140432, 0), App.Vector(0, 0, 1), 5), math.radians(13.136559), math.radians(166.863441)),  # 36
    Part.ArcOfCircle(Part.Circle(App.Vector(42.730578, -41.140432, 0), App.Vector(0, 0, 1), 5), math.radians(166.863441), math.radians(360)),  # 37
    Part.ArcOfCircle(Part.Circle(App.Vector(42.730578, -41.140432, 0), App.Vector(0, 0, 1), 5), math.radians(0), math.radians(13.136559)),  # 38
], False)
sketch3.addConstraint([
    Sketcher.Constraint("Tangent", 0, 2, 1, 1),
    Sketcher.Constraint("Tangent", 1, 2, 2, 1),
    Sketcher.Constraint("Tangent", 2, 2, 0, 1),
    Sketcher.Constraint("Tangent", 3, 2, 4, 1),
    Sketcher.Constraint("Tangent", 4, 2, 5, 1),
    Sketcher.Constraint("Tangent", 5, 2, 3, 1),
    Sketcher.Constraint("Tangent", 6, 2, 7, 1),
    Sketcher.Constraint("Tangent", 7, 2, 8, 1),
    Sketcher.Constraint("Tangent", 8, 2, 6, 1),
    Sketcher.Constraint("Tangent", 9, 2, 10, 1),
    Sketcher.Constraint("Tangent", 10, 2, 11, 1),
    Sketcher.Constraint("Tangent", 11, 2, 9, 1),
    Sketcher.Constraint("Tangent", 12, 2, 13, 1),
    Sketcher.Constraint("Tangent", 13, 2, 14, 1),
    Sketcher.Constraint("Tangent", 14, 2, 12, 1),
    Sketcher.Constraint("Tangent", 15, 2, 16, 1),
    Sketcher.Constraint("Tangent", 16, 2, 17, 1),
    Sketcher.Constraint("Tangent", 17, 2, 15, 1),
    Sketcher.Constraint("Tangent", 18, 2, 19, 1),
    Sketcher.Constraint("Tangent", 19, 2, 20, 1),
    Sketcher.Constraint("Tangent", 20, 2, 18, 1),
    Sketcher.Constraint("Tangent", 21, 2, 22, 1),
    Sketcher.Constraint("Tangent", 22, 2, 23, 1),
    Sketcher.Constraint("Tangent", 23, 2, 21, 1),
    Sketcher.Constraint("Tangent", 24, 2, 25, 1),
    Sketcher.Constraint("Tangent", 25, 2, 26, 1),
    Sketcher.Constraint("Tangent", 26, 2, 24, 1),
    Sketcher.Constraint("Tangent", 27, 2, 28, 1),
    Sketcher.Constraint("Tangent", 28, 2, 29, 1),
    Sketcher.Constraint("Tangent", 29, 2, 27, 1),
    Sketcher.Constraint("Tangent", 30, 2, 31, 1),
    Sketcher.Constraint("Tangent", 31, 2, 32, 1),
    Sketcher.Constraint("Tangent", 32, 2, 30, 1),
    Sketcher.Constraint("Tangent", 33, 2, 34, 1),
    Sketcher.Constraint("Tangent", 34, 2, 35, 1),
    Sketcher.Constraint("Tangent", 35, 2, 33, 1),
    Sketcher.Constraint("Tangent", 36, 2, 37, 1),
    Sketcher.Constraint("Tangent", 37, 2, 38, 1),
    Sketcher.Constraint("Tangent", 38, 2, 36, 1),
    Sketcher.Constraint("Equal", 2, 3),
    Sketcher.Constraint("Equal", 5, 6),
    Sketcher.Constraint("Equal", 8, 9),
    Sketcher.Constraint("Equal", 11, 12),
    Sketcher.Constraint("Equal", 14, 15),
    Sketcher.Constraint("Equal", 17, 18),
    Sketcher.Constraint("Equal", 20, 21),
    Sketcher.Constraint("Equal", 23, 24),
    Sketcher.Constraint("Equal", 26, 27),
    Sketcher.Constraint("Equal", 29, 30),
    Sketcher.Constraint("Equal", 32, 33),
    Sketcher.Constraint("Equal", 35, 36),
    Sketcher.Constraint("Horizontal", 2, 3, 3, 3),
    Sketcher.Constraint("Horizontal", 5, 3, 6, 3),
    Sketcher.Constraint("Horizontal", 8, 3, 9, 3),
    Sketcher.Constraint("Horizontal", 14, 3, 15, 3),
    Sketcher.Constraint("Horizontal", 17, 3, 18, 3),
    Sketcher.Constraint("Horizontal", 20, 3, 21, 3),
    Sketcher.Constraint("Horizontal", 23, 3, 24, 3),
    Sketcher.Constraint("Horizontal", 29, 3, 30, 3),
    Sketcher.Constraint("Horizontal", 32, 3, 33, 3),
    Sketcher.Constraint("Horizontal", 35, 3, 36, 3),
    Sketcher.Constraint("Horizontal", 11, 3, 1, 2),
    Sketcher.Constraint("Horizontal", 0, 2, 2, 2),
    Sketcher.Constraint("Horizontal", 2, 2, 3, 2),
    Sketcher.Constraint("Horizontal", 1, 2, 4, 2),
    Sketcher.Constraint("Horizontal", 3, 2, 5, 2),
    Sketcher.Constraint("Horizontal", 5, 2, 6, 2),
    Sketcher.Constraint("Horizontal", 4, 2, 7, 2),
    Sketcher.Constraint("Horizontal", 6, 2, 8, 2),
    Sketcher.Constraint("Horizontal", 8, 2, 9, 2),
    Sketcher.Constraint("Horizontal", 7, 2, 10, 2),
    Sketcher.Constraint("Horizontal", 9, 2, 11, 2),
    Sketcher.Constraint("Horizontal", 26, 3, 13, 2),
    Sketcher.Constraint("Horizontal", 12, 2, 14, 2),
    Sketcher.Constraint("Horizontal", 14, 2, 15, 2),
    Sketcher.Constraint("Horizontal", 13, 2, 16, 2),
    Sketcher.Constraint("Horizontal", 15, 2, 17, 2),
    Sketcher.Constraint("Horizontal", 17, 2, 18, 2),
    Sketcher.Constraint("Horizontal", 16, 2, 19, 2),
    Sketcher.Constraint("Horizontal", 18, 2, 20, 2),
    Sketcher.Constraint("Horizontal", 20, 2, 21, 2),
    Sketcher.Constraint("Horizontal", 19, 2, 22, 2),
    Sketcher.Constraint("Horizontal", 21, 2, 23, 2),
    Sketcher.Constraint("Horizontal", 23, 2, 24, 2),
    Sketcher.Constraint("Horizontal", 22, 2, 25, 2),
    Sketcher.Constraint("Horizontal", 24, 2, 26, 2),
    Sketcher.Constraint("Horizontal", 38, 3, 28, 2),
    Sketcher.Constraint("Horizontal", 27, 2, 29, 2),
    Sketcher.Constraint("Horizontal", 29, 2, 30, 2),
    Sketcher.Constraint("Horizontal", 28, 2, 31, 2),
    Sketcher.Constraint("Horizontal", 30, 2, 32, 2),
    Sketcher.Constraint("Horizontal", 32, 2, 33, 2),
    Sketcher.Constraint("Horizontal", 31, 2, 34, 2),
    Sketcher.Constraint("Horizontal", 33, 2, 35, 2),
    Sketcher.Constraint("Horizontal", 35, 2, 36, 2),
    Sketcher.Constraint("Horizontal", 34, 2, 37, 2),
    Sketcher.Constraint("Horizontal", 36, 2, 38, 2),
    Sketcher.Constraint("Vertical", 2, 3, 27, 3),
    Sketcher.Constraint("Vertical", 5, 3, 30, 3),
    Sketcher.Constraint("Vertical", 8, 3, 33, 3),
    Sketcher.Constraint("Vertical", 11, 3, 36, 3),
    Sketcher.Constraint("Vertical", 0, 2, 27, 2),
    Sketcher.Constraint("Radius", 0, Q("5 mm")),
    Sketcher.Constraint("DistanceX", 0, 3, -1, 1, Q("41.269422 mm")),
    Sketcher.Constraint("DistanceX", 3, 3, -1, 1, Q("13.269422 mm")),
    Sketcher.Constraint("DistanceX", -1, 1, 6, 3, Q("14.730578 mm")),
    Sketcher.Constraint("DistanceX", -1, 1, 9, 3, Q("42.730578 mm")),
    Sketcher.Constraint("DistanceX", 12, 3, -1, 1, Q("55.269422 mm")),
    Sketcher.Constraint("DistanceX", 15, 3, -1, 1, Q("27.269422 mm")),
    Sketcher.Constraint("DistanceX", -1, 1, 18, 3, Q("0.730578 mm")),
    Sketcher.Constraint("DistanceX", -1, 1, 21, 3, Q("28.730578 mm")),
    Sketcher.Constraint("DistanceX", -1, 1, 24, 3, Q("56.730578 mm")),
    Sketcher.Constraint("DistanceY", -1, 1, 0, 2, Q("29.995931 mm")),
    Sketcher.Constraint("DistanceY", 12, 2, -1, 1, Q("5.004069 mm")),
    Sketcher.Constraint("DistanceY", 27, 2, -1, 1, Q("40.004069 mm")),
    Sketcher.Constraint("DistanceY", -1, 1, 0, 3, Q("28.859568 mm")),
    Sketcher.Constraint("DistanceY", 12, 3, -1, 1, Q("6.140432 mm")),
])
pocket2 = body.newObject("PartDesign::Pocket", "Pocket001")
pocket2.Profile = sketch3
pocket2.Length = 8
body2 = doc.addObject("PartDesign::Body", "Body001")

# Sketch on XY plane
sketch4 = body2.newObject("Sketcher::SketchObject", "Sketch003")
sketch4.AttachmentSupport = (doc.getObject("XY_Plane001"), [""])
sketch4.MapMode = "FlatFace"
add_polygon(sketch4, [(-136.744573, 15), (-136.744573, -15), (-106.744573, -15), (-106.744573, 15)])  # lines 0-3
sketch4.addConstraint([
    Sketcher.Constraint("Vertical", 0),
    Sketcher.Constraint("Horizontal", 1),
    Sketcher.Constraint("Vertical", 2),
    Sketcher.Constraint("Horizontal", 3),
    Sketcher.Constraint("Equal", 3, 0),
    Sketcher.Constraint("DistanceX", 1, 1, 1, 2, Q("30 mm")),
    Sketcher.Constraint("DistanceY", 0, 2, -1, 1, Q("15 mm")),
    Sketcher.Constraint("DistanceX", 0, 2, -1, 1, Q("136.744573 mm")),
])
pad2 = body2.newObject("PartDesign::Pad", "Pad001")
pad2.Profile = sketch4
pad2.Length = 10

# Sketch on XY plane
sketch5 = body2.newObject("Sketcher::SketchObject", "Sketch004")
sketch5.AttachmentSupport = (doc.getObject("XY_Plane001"), [""])
sketch5.MapMode = "FlatFace"
sketch5.AttachmentOffset = App.Placement(App.Vector(0, 0, 10), App.Rotation())
sketch5.addGeometry([
    Part.ArcOfCircle(Part.Circle(App.Vector(-121.341258, 2.277808, 0), App.Vector(0, 0, 1), 11), math.radians(-63.726882), math.radians(0)),
    Part.ArcOfCircle(Part.Circle(App.Vector(-121.341258, 2.277808, 0), App.Vector(0, 0, 1), 11), math.radians(0), math.radians(243.726882)),
    Part.ArcOfCircle(Part.Circle(App.Vector(-121.341258, -8.722192, 0), App.Vector(0, 0, 1), 5), math.radians(13.136559), math.radians(166.863441)),
], False)
sketch5.addConstraint([
    Sketcher.Constraint("Tangent", 0, 2, 1, 1),
    Sketcher.Constraint("Coincident", 1, 2, 2, 2),
    Sketcher.Constraint("Coincident", 2, 1, 0, 1),
    Sketcher.Constraint("Equal", 0, 1),
    Sketcher.Constraint("Horizontal", 1, 3, 0, 2),
    Sketcher.Constraint("Horizontal", 1, 2, 2, 1),
    Sketcher.Constraint("Radius", 0, Q("11 mm")),
    Sketcher.Constraint("Radius", 2, Q("5 mm")),
    Sketcher.Constraint("DistanceY", 2, 3, 0, 3, Q("11 mm")),
    Sketcher.Constraint("DistanceX", 0, 3, -1, 1, Q("121.341258 mm")),
    Sketcher.Constraint("DistanceY", -1, 1, 0, 3, Q("2.277808 mm")),
])
pocket3 = body2.newObject("PartDesign::Pocket", "Pocket002")
pocket3.Profile = sketch5
pocket3.Length = 6

# Sketch on XY plane
sketch6 = body2.newObject("Sketcher::SketchObject", "Sketch005")
sketch6.AttachmentSupport = (doc.getObject("XY_Plane001"), [""])
sketch6.MapMode = "FlatFace"
sketch6.AttachmentOffset = App.Placement(App.Vector(0, 0, 10), App.Rotation())
sketch6.addGeometry([
    Part.ArcOfCircle(Part.Circle(App.Vector(-121.341258, -8.722192, 0), App.Vector(0, 0, 1), 5), math.radians(166.863441), math.radians(360)),
    Part.ArcOfCircle(Part.Circle(App.Vector(-121.341258, -8.722192, 0), App.Vector(0, 0, 1), 5), math.radians(0), math.radians(13.136559)),
    Part.ArcOfCircle(Part.Circle(App.Vector(-121.341258, -8.722192, 0), App.Vector(0, 0, 1), 5), math.radians(13.136559), math.radians(166.863441)),
], False)
sketch6.addConstraint([
    Sketcher.Constraint("Tangent", 0, 2, 1, 1),
    Sketcher.Constraint("Tangent", 1, 2, 2, 1),
    Sketcher.Constraint("Tangent", 2, 2, 0, 1),
    Sketcher.Constraint("Horizontal", 2, 3, 0, 2),
    Sketcher.Constraint("Horizontal", 1, 2, 2, 2),
    Sketcher.Constraint("Radius", 0, Q("5 mm")),
    Sketcher.Constraint("DistanceX", 0, 3, -1, 1, Q("121.341258 mm")),
    Sketcher.Constraint("DistanceY", 0, 3, -1, 1, Q("8.722192 mm")),
    Sketcher.Constraint("DistanceY", 1, 2, -1, 1, Q("7.585828 mm")),
])
pocket4 = body2.newObject("PartDesign::Pocket", "Pocket003")
pocket4.Profile = sketch6
pocket4.Length = 8

doc.recompute()
